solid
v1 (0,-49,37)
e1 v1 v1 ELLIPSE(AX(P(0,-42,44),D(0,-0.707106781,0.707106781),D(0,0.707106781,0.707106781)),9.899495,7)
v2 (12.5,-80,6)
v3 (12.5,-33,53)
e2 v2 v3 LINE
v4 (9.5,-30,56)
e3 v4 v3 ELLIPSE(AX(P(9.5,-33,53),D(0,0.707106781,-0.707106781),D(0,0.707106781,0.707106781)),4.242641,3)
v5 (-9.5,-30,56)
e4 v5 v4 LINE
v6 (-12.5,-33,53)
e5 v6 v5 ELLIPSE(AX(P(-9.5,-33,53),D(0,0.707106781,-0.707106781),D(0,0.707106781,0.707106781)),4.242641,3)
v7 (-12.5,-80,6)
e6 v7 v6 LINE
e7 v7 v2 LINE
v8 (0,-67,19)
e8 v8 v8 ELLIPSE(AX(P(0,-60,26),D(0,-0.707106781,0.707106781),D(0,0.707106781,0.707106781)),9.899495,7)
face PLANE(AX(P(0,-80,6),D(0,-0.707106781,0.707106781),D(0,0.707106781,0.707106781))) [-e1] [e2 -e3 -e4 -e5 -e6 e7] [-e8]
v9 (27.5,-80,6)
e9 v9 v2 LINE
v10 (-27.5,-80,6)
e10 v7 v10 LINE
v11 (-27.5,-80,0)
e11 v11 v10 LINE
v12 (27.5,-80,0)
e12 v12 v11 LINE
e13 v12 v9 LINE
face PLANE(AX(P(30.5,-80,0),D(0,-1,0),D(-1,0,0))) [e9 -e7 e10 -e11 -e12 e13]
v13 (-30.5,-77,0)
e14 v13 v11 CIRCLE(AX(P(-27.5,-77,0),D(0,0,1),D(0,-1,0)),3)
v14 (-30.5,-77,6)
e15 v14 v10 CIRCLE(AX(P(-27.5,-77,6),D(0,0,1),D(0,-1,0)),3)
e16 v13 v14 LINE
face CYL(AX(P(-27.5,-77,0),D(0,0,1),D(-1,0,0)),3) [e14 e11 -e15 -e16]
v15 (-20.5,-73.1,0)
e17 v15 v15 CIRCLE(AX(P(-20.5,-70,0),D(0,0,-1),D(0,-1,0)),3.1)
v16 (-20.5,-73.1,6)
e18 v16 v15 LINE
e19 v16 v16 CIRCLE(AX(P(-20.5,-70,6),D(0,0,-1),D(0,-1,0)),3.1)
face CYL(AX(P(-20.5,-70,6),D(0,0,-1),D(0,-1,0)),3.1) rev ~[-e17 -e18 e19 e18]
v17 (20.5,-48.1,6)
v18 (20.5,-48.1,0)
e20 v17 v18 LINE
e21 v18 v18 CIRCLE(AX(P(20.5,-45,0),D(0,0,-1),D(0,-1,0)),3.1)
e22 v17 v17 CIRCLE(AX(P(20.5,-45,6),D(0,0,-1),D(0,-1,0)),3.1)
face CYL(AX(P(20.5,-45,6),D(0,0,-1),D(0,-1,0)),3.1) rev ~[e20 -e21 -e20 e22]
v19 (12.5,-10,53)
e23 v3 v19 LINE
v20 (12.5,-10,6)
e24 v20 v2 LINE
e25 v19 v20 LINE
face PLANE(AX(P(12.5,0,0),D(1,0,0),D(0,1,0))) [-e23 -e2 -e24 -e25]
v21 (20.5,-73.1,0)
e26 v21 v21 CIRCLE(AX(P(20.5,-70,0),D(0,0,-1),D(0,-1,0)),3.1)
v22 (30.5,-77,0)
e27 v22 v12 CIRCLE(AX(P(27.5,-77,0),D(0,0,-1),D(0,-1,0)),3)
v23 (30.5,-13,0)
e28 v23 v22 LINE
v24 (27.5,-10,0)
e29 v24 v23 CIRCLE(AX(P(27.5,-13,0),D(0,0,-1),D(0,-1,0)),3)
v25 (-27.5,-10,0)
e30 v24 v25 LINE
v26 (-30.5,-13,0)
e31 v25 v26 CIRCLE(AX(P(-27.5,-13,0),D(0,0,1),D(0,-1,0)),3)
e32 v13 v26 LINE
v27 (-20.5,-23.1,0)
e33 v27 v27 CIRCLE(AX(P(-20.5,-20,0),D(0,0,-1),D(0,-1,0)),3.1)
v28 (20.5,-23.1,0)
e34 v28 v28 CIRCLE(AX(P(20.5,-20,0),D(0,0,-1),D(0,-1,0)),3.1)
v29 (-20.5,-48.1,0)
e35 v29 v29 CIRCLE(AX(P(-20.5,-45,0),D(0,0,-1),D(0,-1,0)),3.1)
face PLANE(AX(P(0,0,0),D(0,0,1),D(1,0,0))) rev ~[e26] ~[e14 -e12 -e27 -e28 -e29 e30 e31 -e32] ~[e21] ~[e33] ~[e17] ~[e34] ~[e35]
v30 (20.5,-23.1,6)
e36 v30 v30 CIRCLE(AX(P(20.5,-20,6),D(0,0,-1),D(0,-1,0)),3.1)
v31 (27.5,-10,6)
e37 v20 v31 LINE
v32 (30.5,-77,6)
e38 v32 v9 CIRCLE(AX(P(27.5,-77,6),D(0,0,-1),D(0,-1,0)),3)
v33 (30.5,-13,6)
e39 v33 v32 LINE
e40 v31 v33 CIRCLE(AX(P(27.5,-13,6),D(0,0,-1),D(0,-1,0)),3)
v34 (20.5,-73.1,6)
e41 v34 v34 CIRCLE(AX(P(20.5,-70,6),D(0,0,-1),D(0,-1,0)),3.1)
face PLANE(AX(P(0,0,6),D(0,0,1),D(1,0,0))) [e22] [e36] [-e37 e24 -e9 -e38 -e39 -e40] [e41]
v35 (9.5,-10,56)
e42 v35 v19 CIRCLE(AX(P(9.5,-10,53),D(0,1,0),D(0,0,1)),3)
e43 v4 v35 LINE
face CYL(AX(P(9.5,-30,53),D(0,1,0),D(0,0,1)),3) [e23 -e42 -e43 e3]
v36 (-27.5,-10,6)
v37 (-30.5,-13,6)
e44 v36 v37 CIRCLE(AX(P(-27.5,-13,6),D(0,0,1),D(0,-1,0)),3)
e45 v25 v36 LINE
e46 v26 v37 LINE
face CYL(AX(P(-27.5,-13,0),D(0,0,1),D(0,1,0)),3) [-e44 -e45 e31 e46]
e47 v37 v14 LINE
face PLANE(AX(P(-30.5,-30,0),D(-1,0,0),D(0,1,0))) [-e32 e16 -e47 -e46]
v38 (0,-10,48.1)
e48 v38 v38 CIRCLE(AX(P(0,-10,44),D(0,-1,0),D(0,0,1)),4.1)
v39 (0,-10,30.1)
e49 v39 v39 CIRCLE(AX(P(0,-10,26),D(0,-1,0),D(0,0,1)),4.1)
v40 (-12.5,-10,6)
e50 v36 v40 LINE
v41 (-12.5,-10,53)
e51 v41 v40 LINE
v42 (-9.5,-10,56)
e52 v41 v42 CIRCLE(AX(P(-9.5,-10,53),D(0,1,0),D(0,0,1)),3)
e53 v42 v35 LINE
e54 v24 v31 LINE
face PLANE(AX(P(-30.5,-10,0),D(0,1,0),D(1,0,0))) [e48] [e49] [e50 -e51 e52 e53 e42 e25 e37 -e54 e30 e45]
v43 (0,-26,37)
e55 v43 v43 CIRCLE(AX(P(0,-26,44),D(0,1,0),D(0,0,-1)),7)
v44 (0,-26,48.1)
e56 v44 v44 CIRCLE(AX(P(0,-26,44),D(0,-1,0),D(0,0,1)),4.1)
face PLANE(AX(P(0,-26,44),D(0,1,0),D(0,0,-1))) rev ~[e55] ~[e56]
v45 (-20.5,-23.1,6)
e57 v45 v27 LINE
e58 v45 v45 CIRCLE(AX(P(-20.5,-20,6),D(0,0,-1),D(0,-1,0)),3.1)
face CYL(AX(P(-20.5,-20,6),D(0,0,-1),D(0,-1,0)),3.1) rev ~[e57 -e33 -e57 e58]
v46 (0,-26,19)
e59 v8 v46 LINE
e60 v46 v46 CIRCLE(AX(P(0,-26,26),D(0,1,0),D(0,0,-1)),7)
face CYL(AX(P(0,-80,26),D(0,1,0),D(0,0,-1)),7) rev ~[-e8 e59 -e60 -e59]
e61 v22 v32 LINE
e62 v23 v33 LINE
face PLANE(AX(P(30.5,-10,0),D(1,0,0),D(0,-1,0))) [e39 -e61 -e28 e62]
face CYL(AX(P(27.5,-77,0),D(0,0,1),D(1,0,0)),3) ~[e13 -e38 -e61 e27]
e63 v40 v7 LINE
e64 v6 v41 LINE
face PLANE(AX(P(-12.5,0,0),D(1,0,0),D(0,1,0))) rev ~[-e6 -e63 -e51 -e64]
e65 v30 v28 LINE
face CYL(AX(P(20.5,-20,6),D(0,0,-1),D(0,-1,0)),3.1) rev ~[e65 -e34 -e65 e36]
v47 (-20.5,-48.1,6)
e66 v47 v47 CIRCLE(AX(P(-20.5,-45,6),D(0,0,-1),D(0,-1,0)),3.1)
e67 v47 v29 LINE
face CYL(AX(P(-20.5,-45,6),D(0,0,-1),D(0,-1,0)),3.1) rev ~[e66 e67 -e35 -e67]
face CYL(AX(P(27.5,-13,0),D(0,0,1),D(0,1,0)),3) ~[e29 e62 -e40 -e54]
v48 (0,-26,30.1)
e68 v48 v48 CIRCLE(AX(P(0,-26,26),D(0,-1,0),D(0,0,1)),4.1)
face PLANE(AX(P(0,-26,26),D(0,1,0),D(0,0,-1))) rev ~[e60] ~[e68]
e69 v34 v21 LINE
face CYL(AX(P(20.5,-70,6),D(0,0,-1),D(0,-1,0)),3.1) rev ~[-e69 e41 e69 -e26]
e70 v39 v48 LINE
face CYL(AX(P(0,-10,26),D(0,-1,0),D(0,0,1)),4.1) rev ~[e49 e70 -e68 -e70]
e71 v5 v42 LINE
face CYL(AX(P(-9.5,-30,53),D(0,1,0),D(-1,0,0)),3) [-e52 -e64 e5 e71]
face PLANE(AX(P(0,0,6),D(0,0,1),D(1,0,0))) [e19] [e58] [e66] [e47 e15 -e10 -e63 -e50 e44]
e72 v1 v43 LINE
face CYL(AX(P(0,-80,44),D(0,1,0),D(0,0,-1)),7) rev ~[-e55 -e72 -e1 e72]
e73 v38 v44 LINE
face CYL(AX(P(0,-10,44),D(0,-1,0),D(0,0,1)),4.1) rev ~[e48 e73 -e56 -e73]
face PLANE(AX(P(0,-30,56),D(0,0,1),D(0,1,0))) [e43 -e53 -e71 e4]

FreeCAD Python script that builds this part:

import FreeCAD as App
import Part
import Sketcher

V = App.Vector


def edges_at(feature, points):
    """Names of the edges that pass closest to the given points."""
    edges = feature.Shape.Edges
    near = lambda p: min(range(len(edges)), key=lambda i: edges[i].distToShape(Part.Vertex(*p))[0])
    return sorted({f"Edge{near(p) + 1}" for p in points})

doc = App.newDocument("Part")
params = doc.addObject("Spreadsheet::Sheet", "Params")
for row, (alias, value) in enumerate([
    ("sketch1_width", "20 mm"),
    ("sketch1_width2", "70 mm"),
    ("sketch1_height", "56 mm"),
    ("sketch1_height2", "6 mm"),
    ("pad1_length", "25 mm"),
    ("sketch2_diameter", "8.2 mm"),
    ("hole_diameter", "8.2 mm"),
    ("hole_depth", "16 mm"),
    ("sketch3_diameter", "14 mm"),
    ("hole2_diameter", "14 mm"),
    ("hole2_depth", "54 mm"),
    ("sketch4_height", "70 mm"),
    ("pad2_length", "6 mm"),
    ("sketch5_diameter", "6.2 mm"),
    ("hole3_diameter", "6.2 mm"),
    ("fillet_radius", "3 mm"),
    ("fillet2_radius", "3 mm"),
], start=1):
    params.set(f"A{row}", alias)
    params.set(f"B{row}", "=" + value)
    params.setAlias(f"B{row}", alias)

body = doc.addObject("PartDesign::Body", "Body")

# Sketch on YZ plane
sketch1 = body.newObject("Sketcher::SketchObject", "Sketch")
sketch1.AttachmentSupport = (doc.getObject("YZ_Plane"), [""])
sketch1.MapMode = "FlatFace"
sketch1.addGeometry(Part.LineSegment(V(-10, 0, 0), V(-10, 56, 0)), False)
sketch1.addGeometry(Part.LineSegment(V(-10, 56, 0), V(-30, 56, 0)), False)
sketch1.addGeometry(Part.LineSegment(V(-30, 56, 0), V(-80, 6, 0)), False)
sketch1.addGeometry(Part.LineSegment(V(-80, 6, 0), V(-80, 0, 0)), False)
sketch1.addGeometry(Part.LineSegment(V(-80, 0, 0), V(-10, 0, 0)), False)
sketch1.addConstraint(Sketcher.Constraint("Coincident", 0, 2, 1, 1))
sketch1.addConstraint(Sketcher.Constraint("Coincident", 1, 2, 2, 1))
sketch1.addConstraint(Sketcher.Constraint("Coincident", 2, 2, 3, 1))
sketch1.addConstraint(Sketcher.Constraint("Coincident", 3, 2, 4, 1))
sketch1.addConstraint(Sketcher.Constraint("Coincident", 4, 2, 0, 1))
sketch1.addConstraint(Sketcher.Constraint("Vertical", 0))
sketch1.addConstraint(Sketcher.Constraint("Horizontal", 1))
sketch1.addConstraint(Sketcher.Constraint("Vertical", 3))
sketch1.addConstraint(Sketcher.Constraint("Horizontal", 4))
sketch1.addConstraint(Sketcher.Constraint("PointOnObject", 3, 2, -1))
sketch1.addConstraint(Sketcher.Constraint("DistanceX", 1, 2, 1, 1, 20.0))
sketch1.addConstraint(Sketcher.Constraint("DistanceX", 4, 1, 4, 2, 70.0))
sketch1.addConstraint(Sketcher.Constraint("DistanceY", 0, 1, 0, 2, 56.0))
sketch1.addConstraint(Sketcher.Constraint("DistanceY", 3, 2, 3, 1, 6.0))
sketch1.addConstraint(Sketcher.Constraint("DistanceX", 0, 2, -1, 1, 10.0))
sketch1.setExpression("Constraints[10]", "Params.sketch1_width")
sketch1.setExpression("Constraints[11]", "Params.sketch1_width2")
sketch1.setExpression("Constraints[12]", "Params.sketch1_height")
sketch1.setExpression("Constraints[13]", "Params.sketch1_height2")
pad1 = body.newObject("PartDesign::Pad", "Pad")
pad1.Profile = sketch1
pad1.setExpression("Length", "Params.pad1_length")
pad1.Midplane = True

# Sketch on XZ plane
sketch2 = body.newObject("Sketcher::SketchObject", "Sketch001")
sketch2.AttachmentSupport = (doc.getObject("XZ_Plane"), [""])
sketch2.MapMode = "FlatFace"
sketch2.AttachmentOffset = App.Placement(V(0, 0, 10), App.Rotation())
sketch2.addGeometry(Part.Circle(V(0, 44, 0), V(0, 0, 1), 4.1), False)
sketch2.addGeometry(Part.Circle(V(0, 26, 0), V(0, 0, 1), 4.1), False)
sketch2.addConstraint(Sketcher.Constraint("Equal", 0, 1))
sketch2.addConstraint(Sketcher.Constraint("PointOnObject", 0, 3, -2))
sketch2.addConstraint(Sketcher.Constraint("PointOnObject", 1, 3, -2))
sketch2.addConstraint(Sketcher.Constraint("Diameter", 0, 8.2))
sketch2.addConstraint(Sketcher.Constraint("DistanceY", -1, 1, 0, 3, 44.0))
sketch2.addConstraint(Sketcher.Constraint("DistanceY", -1, 1, 1, 3, 26.0))
sketch2.setExpression("Constraints[3]", "Params.sketch2_diameter")
doc.recompute()
hole = body.newObject("PartDesign::Hole", "Hole")
hole.Profile = sketch2
hole.ThreadType = "None"
hole.setExpression("Diameter", "Params.hole_diameter")
hole.DepthType = "Dimension"
hole.setExpression("Depth", "Params.hole_depth")
hole.DrillPoint = "Flat"
hole.Reversed = True

# Sketch on XZ plane
sketch3 = body.newObject("Sketcher::SketchObject", "Sketch002")
sketch3.AttachmentSupport = (doc.getObject("XZ_Plane"), [""])
sketch3.MapMode = "FlatFace"
sketch3.AttachmentOffset = App.Placement(V(0, 0, 80), App.Rotation())
sketch3.addGeometry(Part.Circle(V(0, 44, 0), V(0, 0, 1), 7), False)
sketch3.addGeometry(Part.Circle(V(0, 26, 0), V(0, 0, 1), 7), False)
sketch3.addConstraint(Sketcher.Constraint("Equal", 0, 1))
sketch3.addConstraint(Sketcher.Constraint("PointOnObject", 0, 3, -2))
sketch3.addConstraint(Sketcher.Constraint("PointOnObject", 1, 3, -2))
sketch3.addConstraint(Sketcher.Constraint("Diameter", 0, 14.0))
sketch3.addConstraint(Sketcher.Constraint("DistanceY", -1, 1, 0, 3, 44.0))
sketch3.addConstraint(Sketcher.Constraint("DistanceY", -1, 1, 1, 3, 26.0))
sketch3.setExpression("Constraints[3]", "Params.sketch3_diameter")
doc.recompute()
hole2 = body.newObject("PartDesign::Hole", "Hole001")
hole2.Profile = sketch3
hole2.ThreadType = "None"
hole2.setExpression("Diameter", "Params.hole2_diameter")
hole2.DepthType = "Dimension"
hole2.setExpression("Depth", "Params.hole2_depth")
hole2.DrillPoint = "Flat"

# Sketch on XY plane
sketch4 = body.newObject("Sketcher::SketchObject", "Sketch003")
sketch4.AttachmentSupport = (doc.getObject("XY_Plane"), [""])
sketch4.MapMode = "FlatFace"
sketch4.addGeometry(Part.LineSegment(V(30.5, -10, 0), V(-30.5, -10, 0)), False)
sketch4.addGeometry(Part.LineSegment(V(-30.5, -10, 0), V(-30.5, -80, 0)), False)
sketch4.addGeometry(Part.LineSegment(V(-30.5, -80, 0), V(30.5, -80, 0)), False)
sketch4.addGeometry(Part.LineSegment(V(30.5, -80, 0), V(30.5, -10, 0)), False)
sketch4.addConstraint(Sketcher.Constraint("Coincident", 0, 2, 1, 1))
sketch4.addConstraint(Sketcher.Constraint("Coincident", 1, 2, 2, 1))
sketch4.addConstraint(Sketcher.Constraint("Coincident", 2, 2, 3, 1))
sketch4.addConstraint(Sketcher.Constraint("Coincident", 3, 2, 0, 1))
sketch4.addConstraint(Sketcher.Constraint("Horizontal", 0))
sketch4.addConstraint(Sketcher.Constraint("Vertical", 1))
sketch4.addConstraint(Sketcher.Constraint("Horizontal", 2))
sketch4.addConstraint(Sketcher.Constraint("Vertical", 3))
sketch4.addConstraint(Sketcher.Constraint("DistanceX", 0, 2, -1, 1, 30.5))
sketch4.addConstraint(Sketcher.Constraint("DistanceX", -1, 1, 2, 2, 30.5))
sketch4.addConstraint(Sketcher.Constraint("DistanceY", 1, 2, 1, 1, 70.0))
sketch4.addConstraint(Sketcher.Constraint("DistanceY", 0, 2, -1, 1, 10.0))
sketch4.setExpression("Constraints[10]", "Params.sketch4_height")
pad2 = body.newObject("PartDesign::Pad", "Pad001")
pad2.Profile = sketch4
pad2.setExpression("Length", "Params.pad2_length")

# Sketch on XY plane
sketch5 = body.newObject("Sketcher::SketchObject", "Sketch004")
sketch5.AttachmentSupport = (doc.getObject("XY_Plane"), [""])
sketch5.MapMode = "FlatFace"
sketch5.AttachmentOffset = App.Placement(V(0, 0, 6), App.Rotation())
sketch5.addGeometry(Part.Circle(V(-20.5, -70, 0), V(0, 0, 1), 3.1), False)
sketch5.addGeometry(Part.Circle(V(-20.5, -20, 0), V(0, 0, 1), 3.1), False)
sketch5.addGeometry(Part.Circle(V(20.5, -20, 0), V(0, 0, 1), 3.1), False)
sketch5.addGeometry(Part.Circle(V(20.5, -70, 0), V(0, 0, 1), 3.1), False)
sketch5.addGeometry(Part.Circle(V(-20.5, -45, 0), V(0, 0, 1), 3.1), False)
sketch5.addGeometry(Part.Circle(V(20.5, -45, 0), V(0, 0, 1), 3.1), False)
sketch5.addConstraint(Sketcher.Constraint("Equal", 0, 1))
sketch5.addConstraint(Sketcher.Constraint("Equal", 1, 2))
sketch5.addConstraint(Sketcher.Constraint("Equal", 2, 3))
sketch5.addConstraint(Sketcher.Constraint("Equal", 3, 4))
sketch5.addConstraint(Sketcher.Constraint("Equal", 4, 5))
sketch5.addConstraint(Sketcher.Constraint("Symmetric", 1, 3, 2, 3, -2))
sketch5.addConstraint(Sketcher.Constraint("Symmetric", 0, 3, 3, 3, -2))
sketch5.addConstraint(Sketcher.Constraint("Symmetric", 4, 3, 5, 3, -2))
sketch5.addConstraint(Sketcher.Constraint("Vertical", 0, 3, 1, 3))
sketch5.addConstraint(Sketcher.Constraint("Vertical", 1, 3, 4, 3))
sketch5.addConstraint(Sketcher.Constraint("Diameter", 0, 6.2))
sketch5.addConstraint(Sketcher.Constraint("DistanceY", 0, 3, -1, 1, 70.0))
sketch5.addConstraint(Sketcher.Constraint("DistanceY", 1, 3, -1, 1, 20.0))
sketch5.addConstraint(Sketcher.Constraint("DistanceY", 4, 3, -1, 1, 45.0))
sketch5.addConstraint(Sketcher.Constraint("DistanceX", 1, 3, 2, 3, 41.0))
sketch5.setExpression("Constraints[10]", "Params.sketch5_diameter")
doc.recompute()
hole3 = body.newObject("PartDesign::Hole", "Hole002")
hole3.Profile = sketch5
hole3.ThreadType = "None"
hole3.setExpression("Diameter", "Params.hole3_diameter")
hole3.DepthType = "ThroughAll"
doc.recompute()

fillet = body.newObject("PartDesign::Fillet", "Fillet")
fillet.Base = (hole3, edges_at(hole3, [
    (-30.5, -80, 3),
    (30.5, -80, 3),
    (30.5, -10, 3),
    (-30.5, -10, 3),
]))
fillet.setExpression("Radius", "Params.fillet_radius")
doc.recompute()

fillet2 = body.newObject("PartDesign::Fillet", "Fillet001")
fillet2.Base = (fillet, edges_at(fillet, [(-12.5, -20, 56), (12.5, -20, 56)]))
fillet2.setExpression("Radius", "Params.fillet2_radius")

doc.recompute()
